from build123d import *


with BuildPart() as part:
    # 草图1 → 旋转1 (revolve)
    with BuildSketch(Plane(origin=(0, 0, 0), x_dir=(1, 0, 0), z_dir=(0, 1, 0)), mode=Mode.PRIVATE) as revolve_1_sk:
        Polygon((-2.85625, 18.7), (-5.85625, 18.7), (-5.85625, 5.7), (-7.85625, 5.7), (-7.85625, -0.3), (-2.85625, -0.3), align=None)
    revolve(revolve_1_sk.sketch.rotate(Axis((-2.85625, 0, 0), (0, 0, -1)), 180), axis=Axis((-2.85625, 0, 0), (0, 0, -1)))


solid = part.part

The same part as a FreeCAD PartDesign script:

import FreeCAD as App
import Part
import Sketcher
from FreeCAD import Vector

doc = App.newDocument("Part")
body = doc.addObject("PartDesign::Body", "Body")

# Sketch on XZ plane
sketch1 = body.newObject("Sketcher::SketchObject", "Sketch")
sketch1.AttachmentSupport = (doc.getObject("XZ_Plane"), [""])
sketch1.MapMode = "FlatFace"
sketch1.addGeometry([
    Part.LineSegment(Vector(-2.9, -18.7, 0), Vector(-5.9, -18.7, 0)),  # 0
    Part.LineSegment(Vector(-5.9, -18.7, 0), Vector(-5.9, -5.7, 0)),  # 1
    Part.LineSegment(Vector(-5.9, -5.7, 0), Vector(-7.9, -5.7, 0)),  # 2
    Part.LineSegment(Vector(-7.9, -5.7, 0), Vector(-7.9, 0.3, 0)),  # 3
    Part.LineSegment(Vector(-7.9, 0.3, 0), Vector(-2.9, 0.3, 0)),  # 4
    Part.LineSegment(Vector(-2.9, 0.3, 0), Vector(-2.9, -18.7, 0)),  # 5
], False)
sketch1.addGeometry(Part.LineSegment(Vector(-2.9, 0.3, 0), Vector(-2.9, -18.7, 0)), True)  # axis
sketch1.addConstraint([
    Sketcher.Constraint("Coincident", 0, 2, 1, 1),
    Sketcher.Constraint("Coincident", 1, 2, 2, 1),
    Sketcher.Constraint("Coincident", 2, 2, 3, 1),
    Sketcher.Constraint("Coincident", 3, 2, 4, 1),
    Sketcher.Constraint("Coincident", 4, 2, 5, 1),
    Sketcher.Constraint("Coincident", 5, 2, 0, 1),
    Sketcher.Constraint("Horizontal", 0),
    Sketcher.Constraint("Vertical", 1),
    Sketcher.Constraint("Horizontal", 2),
    Sketcher.Constraint("Vertical", 3),
    Sketcher.Constraint("Horizontal", 4),
    Sketcher.Constraint("Vertical", 5),
    Sketcher.Constraint("Vertical", 6),
    Sketcher.Constraint("Coincident", 6, 1, 4, 2),
    Sketcher.Constraint("Horizontal", 0, 2, 6, 2),
    Sketcher.Constraint("DistanceX", 0, 2, 0, 1, 3.0),
    Sketcher.Constraint("DistanceX", 2, 2, 2, 1, 2.0),
    Sketcher.Constraint("DistanceY", 1, 1, 1, 2, 13.0),
    Sketcher.Constraint("DistanceY", 3, 1, 3, 2, 6.0),
    Sketcher.Constraint("DistanceY", 0, 2, -1, 1, 18.7),
    Sketcher.Constraint("DistanceX", 0, 2, -1, 1, 5.85625),
])
revolution = body.newObject("PartDesign::Revolution", "Revolution")
revolution.Profile = sketch1
revolution.ReferenceAxis = (sketch1, ["Axis0"])
revolution.Angle = 360

doc.recompute()
